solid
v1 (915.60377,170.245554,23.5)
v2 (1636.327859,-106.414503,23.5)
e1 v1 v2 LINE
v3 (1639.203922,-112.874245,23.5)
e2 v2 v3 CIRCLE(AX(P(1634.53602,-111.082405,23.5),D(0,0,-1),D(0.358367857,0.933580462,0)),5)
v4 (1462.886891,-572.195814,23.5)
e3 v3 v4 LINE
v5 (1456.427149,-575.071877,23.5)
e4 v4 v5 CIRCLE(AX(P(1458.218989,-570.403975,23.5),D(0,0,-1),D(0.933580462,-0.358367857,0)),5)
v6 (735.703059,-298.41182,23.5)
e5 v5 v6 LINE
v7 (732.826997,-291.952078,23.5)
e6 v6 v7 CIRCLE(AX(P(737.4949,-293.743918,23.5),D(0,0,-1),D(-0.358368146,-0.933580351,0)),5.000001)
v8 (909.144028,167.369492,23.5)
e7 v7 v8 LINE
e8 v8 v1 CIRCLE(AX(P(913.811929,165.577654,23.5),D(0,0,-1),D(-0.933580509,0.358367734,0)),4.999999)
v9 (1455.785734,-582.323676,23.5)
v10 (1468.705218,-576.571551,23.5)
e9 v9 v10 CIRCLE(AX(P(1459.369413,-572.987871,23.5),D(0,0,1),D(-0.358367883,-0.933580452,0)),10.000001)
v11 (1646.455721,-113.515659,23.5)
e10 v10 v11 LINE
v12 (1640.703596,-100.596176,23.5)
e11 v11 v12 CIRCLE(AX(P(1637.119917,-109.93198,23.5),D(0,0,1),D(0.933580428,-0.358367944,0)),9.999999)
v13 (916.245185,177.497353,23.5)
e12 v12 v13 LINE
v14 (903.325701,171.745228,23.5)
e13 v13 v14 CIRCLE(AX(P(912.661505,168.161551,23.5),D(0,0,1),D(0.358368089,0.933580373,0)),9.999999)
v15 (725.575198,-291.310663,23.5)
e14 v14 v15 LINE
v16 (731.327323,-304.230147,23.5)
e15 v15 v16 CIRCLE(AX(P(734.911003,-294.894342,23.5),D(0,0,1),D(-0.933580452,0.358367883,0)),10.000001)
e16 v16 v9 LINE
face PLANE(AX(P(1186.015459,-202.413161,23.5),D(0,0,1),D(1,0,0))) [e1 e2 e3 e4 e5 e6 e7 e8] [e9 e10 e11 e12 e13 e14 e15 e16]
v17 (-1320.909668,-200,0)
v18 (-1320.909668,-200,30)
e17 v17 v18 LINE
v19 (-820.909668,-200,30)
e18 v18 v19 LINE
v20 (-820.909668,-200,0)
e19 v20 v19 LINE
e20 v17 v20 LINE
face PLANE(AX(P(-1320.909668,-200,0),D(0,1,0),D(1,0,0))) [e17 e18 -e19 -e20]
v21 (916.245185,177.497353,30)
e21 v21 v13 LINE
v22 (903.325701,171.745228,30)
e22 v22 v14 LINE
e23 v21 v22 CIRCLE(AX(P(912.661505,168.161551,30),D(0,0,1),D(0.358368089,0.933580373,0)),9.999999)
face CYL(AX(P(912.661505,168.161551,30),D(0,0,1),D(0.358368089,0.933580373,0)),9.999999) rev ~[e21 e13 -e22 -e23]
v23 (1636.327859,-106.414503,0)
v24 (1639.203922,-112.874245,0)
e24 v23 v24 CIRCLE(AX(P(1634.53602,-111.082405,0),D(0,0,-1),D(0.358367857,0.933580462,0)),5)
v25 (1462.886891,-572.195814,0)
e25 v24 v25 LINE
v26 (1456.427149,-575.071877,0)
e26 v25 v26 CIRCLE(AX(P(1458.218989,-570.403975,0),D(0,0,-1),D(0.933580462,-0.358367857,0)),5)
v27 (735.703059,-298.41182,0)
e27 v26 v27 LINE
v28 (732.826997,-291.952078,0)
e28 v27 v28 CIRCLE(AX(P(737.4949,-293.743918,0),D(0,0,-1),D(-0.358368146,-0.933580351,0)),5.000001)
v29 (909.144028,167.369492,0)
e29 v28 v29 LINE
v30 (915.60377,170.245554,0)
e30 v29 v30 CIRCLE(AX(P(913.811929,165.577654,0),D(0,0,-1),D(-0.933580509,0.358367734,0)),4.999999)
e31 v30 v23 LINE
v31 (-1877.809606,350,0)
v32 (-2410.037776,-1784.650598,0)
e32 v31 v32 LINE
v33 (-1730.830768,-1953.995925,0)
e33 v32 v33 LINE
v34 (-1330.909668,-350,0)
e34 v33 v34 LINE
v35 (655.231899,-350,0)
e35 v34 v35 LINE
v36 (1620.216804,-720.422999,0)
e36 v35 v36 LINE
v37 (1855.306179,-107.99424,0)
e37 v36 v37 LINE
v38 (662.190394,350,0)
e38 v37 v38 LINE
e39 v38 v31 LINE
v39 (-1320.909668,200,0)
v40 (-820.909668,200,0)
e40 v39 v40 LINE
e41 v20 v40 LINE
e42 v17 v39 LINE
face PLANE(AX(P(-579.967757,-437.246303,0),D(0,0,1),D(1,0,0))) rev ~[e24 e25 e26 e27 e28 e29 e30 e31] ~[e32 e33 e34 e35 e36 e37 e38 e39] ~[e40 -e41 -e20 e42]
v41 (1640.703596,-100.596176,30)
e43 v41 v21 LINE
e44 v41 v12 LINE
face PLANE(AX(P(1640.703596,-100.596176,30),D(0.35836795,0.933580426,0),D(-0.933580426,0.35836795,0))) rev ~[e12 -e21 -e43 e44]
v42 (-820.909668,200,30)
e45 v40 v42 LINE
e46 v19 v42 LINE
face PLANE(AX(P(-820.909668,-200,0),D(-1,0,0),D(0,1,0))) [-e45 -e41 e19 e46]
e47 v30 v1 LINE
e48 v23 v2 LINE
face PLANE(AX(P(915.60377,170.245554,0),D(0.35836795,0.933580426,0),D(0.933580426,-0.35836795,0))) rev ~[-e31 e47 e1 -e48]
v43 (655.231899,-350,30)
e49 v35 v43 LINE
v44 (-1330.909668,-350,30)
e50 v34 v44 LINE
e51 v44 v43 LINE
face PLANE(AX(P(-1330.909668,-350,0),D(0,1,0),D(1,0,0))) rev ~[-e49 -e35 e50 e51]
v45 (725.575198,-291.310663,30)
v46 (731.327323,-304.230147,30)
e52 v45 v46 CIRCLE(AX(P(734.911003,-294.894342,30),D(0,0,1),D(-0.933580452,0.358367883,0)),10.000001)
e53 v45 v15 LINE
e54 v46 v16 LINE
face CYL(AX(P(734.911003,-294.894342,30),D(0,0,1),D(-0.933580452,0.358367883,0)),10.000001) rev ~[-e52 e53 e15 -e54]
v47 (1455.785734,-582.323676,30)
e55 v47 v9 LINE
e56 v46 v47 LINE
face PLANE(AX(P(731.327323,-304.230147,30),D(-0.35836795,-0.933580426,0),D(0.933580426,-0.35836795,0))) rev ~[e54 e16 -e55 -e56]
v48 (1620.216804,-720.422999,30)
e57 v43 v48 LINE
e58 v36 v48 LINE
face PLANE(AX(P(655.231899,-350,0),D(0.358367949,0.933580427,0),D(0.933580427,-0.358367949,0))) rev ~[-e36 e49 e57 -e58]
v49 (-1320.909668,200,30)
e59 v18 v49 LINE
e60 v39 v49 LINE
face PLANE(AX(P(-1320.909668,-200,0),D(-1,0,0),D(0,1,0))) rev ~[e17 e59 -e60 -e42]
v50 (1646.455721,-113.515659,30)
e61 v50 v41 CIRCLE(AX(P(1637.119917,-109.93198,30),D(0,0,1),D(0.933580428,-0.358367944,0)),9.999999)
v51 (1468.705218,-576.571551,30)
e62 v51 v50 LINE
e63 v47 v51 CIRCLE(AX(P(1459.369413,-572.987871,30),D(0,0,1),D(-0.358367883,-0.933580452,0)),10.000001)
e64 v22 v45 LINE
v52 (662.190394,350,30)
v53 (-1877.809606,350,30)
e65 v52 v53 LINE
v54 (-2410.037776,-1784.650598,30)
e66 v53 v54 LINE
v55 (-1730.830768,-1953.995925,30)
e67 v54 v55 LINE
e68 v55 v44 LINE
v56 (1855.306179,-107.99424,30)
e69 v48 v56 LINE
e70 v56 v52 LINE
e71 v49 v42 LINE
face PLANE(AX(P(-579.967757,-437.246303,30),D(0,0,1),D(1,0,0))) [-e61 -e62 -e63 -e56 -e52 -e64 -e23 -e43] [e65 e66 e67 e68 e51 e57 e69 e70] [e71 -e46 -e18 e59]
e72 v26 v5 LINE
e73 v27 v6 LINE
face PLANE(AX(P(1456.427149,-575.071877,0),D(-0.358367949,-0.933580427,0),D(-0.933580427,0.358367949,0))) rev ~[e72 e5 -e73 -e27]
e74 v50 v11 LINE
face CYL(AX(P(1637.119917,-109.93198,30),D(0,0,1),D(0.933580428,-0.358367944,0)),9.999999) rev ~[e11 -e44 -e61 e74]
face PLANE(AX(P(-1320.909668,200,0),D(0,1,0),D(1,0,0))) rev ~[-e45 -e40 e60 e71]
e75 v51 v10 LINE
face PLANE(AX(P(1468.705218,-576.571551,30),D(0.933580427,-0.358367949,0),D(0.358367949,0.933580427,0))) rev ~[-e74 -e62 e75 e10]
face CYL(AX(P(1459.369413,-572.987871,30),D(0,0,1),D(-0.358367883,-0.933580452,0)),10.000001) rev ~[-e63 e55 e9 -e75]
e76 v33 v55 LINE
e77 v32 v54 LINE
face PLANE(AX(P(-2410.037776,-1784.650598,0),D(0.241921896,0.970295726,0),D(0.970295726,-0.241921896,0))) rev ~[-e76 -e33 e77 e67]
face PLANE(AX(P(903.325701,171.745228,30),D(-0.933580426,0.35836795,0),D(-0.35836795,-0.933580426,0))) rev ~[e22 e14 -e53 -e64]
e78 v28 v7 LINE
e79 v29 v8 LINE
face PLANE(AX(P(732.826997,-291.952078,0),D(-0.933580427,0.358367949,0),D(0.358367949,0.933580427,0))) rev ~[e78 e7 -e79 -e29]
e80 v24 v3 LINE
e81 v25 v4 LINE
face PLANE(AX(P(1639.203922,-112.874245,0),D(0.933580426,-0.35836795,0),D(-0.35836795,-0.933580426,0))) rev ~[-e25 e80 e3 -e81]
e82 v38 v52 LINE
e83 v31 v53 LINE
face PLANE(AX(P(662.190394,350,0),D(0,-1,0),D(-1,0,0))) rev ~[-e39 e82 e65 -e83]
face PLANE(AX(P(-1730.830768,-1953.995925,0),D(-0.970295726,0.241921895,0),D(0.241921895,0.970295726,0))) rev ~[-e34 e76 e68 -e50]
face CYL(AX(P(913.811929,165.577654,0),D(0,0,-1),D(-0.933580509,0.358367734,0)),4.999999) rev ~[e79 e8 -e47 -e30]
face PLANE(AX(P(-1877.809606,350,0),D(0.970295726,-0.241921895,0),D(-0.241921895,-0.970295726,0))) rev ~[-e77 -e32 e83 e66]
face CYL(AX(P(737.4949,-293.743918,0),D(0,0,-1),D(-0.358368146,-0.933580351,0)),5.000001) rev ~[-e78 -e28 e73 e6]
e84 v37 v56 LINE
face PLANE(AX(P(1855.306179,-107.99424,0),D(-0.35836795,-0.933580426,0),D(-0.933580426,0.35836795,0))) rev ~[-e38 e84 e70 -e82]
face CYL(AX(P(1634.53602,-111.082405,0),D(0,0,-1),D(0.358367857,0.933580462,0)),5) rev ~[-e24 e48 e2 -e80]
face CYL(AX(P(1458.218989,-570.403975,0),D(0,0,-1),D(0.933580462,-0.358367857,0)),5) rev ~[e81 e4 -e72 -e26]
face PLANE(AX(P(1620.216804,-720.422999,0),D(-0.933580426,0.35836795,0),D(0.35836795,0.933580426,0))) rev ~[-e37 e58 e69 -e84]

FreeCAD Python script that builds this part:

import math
import FreeCAD as App
import Part
import Sketcher
Q = App.Units.Quantity

doc = App.newDocument("Part")
body = doc.addObject("PartDesign::Body", "Body")

# Sketch on XY plane
sketch1 = body.newObject("Sketcher::SketchObject", "Sketch")
sketch1.AttachmentSupport = (doc.getObject("XY_Plane"), [""])
sketch1.MapMode = "FlatFace"
sketch1.addGeometry([
    Part.LineSegment(App.Vector(-1330.9, -350, 0), App.Vector(655.2, -350, 0)),  # 0
    Part.LineSegment(App.Vector(655.2, -350, 0), App.Vector(1620.2, -720.4, 0)),  # 1
    Part.LineSegment(App.Vector(1620.2, -720.4, 0), App.Vector(1855.3, -108, 0)),  # 2
    Part.LineSegment(App.Vector(1855.3, -108, 0), App.Vector(662.2, 350, 0)),  # 3
    Part.LineSegment(App.Vector(662.2, 350, 0), App.Vector(-1877.8, 350, 0)),  # 4
    Part.LineSegment(App.Vector(-1877.8, 350, 0), App.Vector(-2410, -1784.7, 0)),  # 5
    Part.LineSegment(App.Vector(-2410, -1784.7, 0), App.Vector(-1730.8, -1954, 0)),  # 6
    Part.LineSegment(App.Vector(-1730.8, -1954, 0), App.Vector(-1330.9, -350, 0)),  # 7
    Part.LineSegment(App.Vector(732.8, -292, 0), App.Vector(909.1, 167.4, 0)),  # 8
    Part.ArcOfCircle(Part.Circle(App.Vector(913.8, 165.6, 0), App.Vector(0, 0, 1), 5), math.radians(69), math.radians(159)),  # 9
    Part.LineSegment(App.Vector(915.6, 170.2, 0), App.Vector(1636.3, -106.4, 0)),  # 10
    Part.ArcOfCircle(Part.Circle(App.Vector(1634.5, -111.1, 0), App.Vector(0, 0, 1), 5), math.radians(-21), math.radians(69)),  # 11
    Part.LineSegment(App.Vector(1639.2, -112.9, 0), App.Vector(1462.9, -572.2, 0)),  # 12
    Part.ArcOfCircle(Part.Circle(App.Vector(1458.2, -570.4, 0), App.Vector(0, 0, 1), 5), math.radians(-111), math.radians(-21)),  # 13
    Part.LineSegment(App.Vector(1456.4, -575.1, 0), App.Vector(735.7, -298.4, 0)),  # 14
    Part.ArcOfCircle(Part.Circle(App.Vector(737.5, -293.7, 0), App.Vector(0, 0, 1), 5), math.radians(159), math.radians(249)),  # 15
    Part.LineSegment(App.Vector(-820.9, -200, 0), App.Vector(-1320.9, -200, 0)),  # 16
    Part.LineSegment(App.Vector(-1320.9, -200, 0), App.Vector(-1320.9, 200, 0)),  # 17
    Part.LineSegment(App.Vector(-1320.9, 200, 0), App.Vector(-820.9, 200, 0)),  # 18
    Part.LineSegment(App.Vector(-820.9, 200, 0), App.Vector(-820.9, -200, 0)),  # 19
], False)
sketch1.addConstraint([
    Sketcher.Constraint("Coincident", 0, 2, 1, 1),
    Sketcher.Constraint("Coincident", 1, 2, 2, 1),
    Sketcher.Constraint("Coincident", 2, 2, 3, 1),
    Sketcher.Constraint("Coincident", 3, 2, 4, 1),
    Sketcher.Constraint("Coincident", 4, 2, 5, 1),
    Sketcher.Constraint("Coincident", 5, 2, 6, 1),
    Sketcher.Constraint("Coincident", 6, 2, 7, 1),
    Sketcher.Constraint("Coincident", 7, 2, 0, 1),
    Sketcher.Constraint("Tangent", 8, 2, 9, 2),
    Sketcher.Constraint("Tangent", 9, 1, 10, 1),
    Sketcher.Constraint("Tangent", 10, 2, 11, 2),
    Sketcher.Constraint("Tangent", 11, 1, 12, 1),
    Sketcher.Constraint("Tangent", 12, 2, 13, 2),
    Sketcher.Constraint("Tangent", 13, 1, 14, 1),
    Sketcher.Constraint("Tangent", 14, 2, 15, 2),
    Sketcher.Constraint("Tangent", 15, 1, 8, 1),
    Sketcher.Constraint("Coincident", 16, 2, 17, 1),
    Sketcher.Constraint("Coincident", 17, 2, 18, 1),
    Sketcher.Constraint("Coincident", 18, 2, 19, 1),
    Sketcher.Constraint("Coincident", 19, 2, 16, 1),
    Sketcher.Constraint("Horizontal", 0),
    Sketcher.Constraint("Horizontal", 4),
    Sketcher.Constraint("Horizontal", 16),
    Sketcher.Constraint("Vertical", 17),
    Sketcher.Constraint("Horizontal", 18),
    Sketcher.Constraint("Vertical", 19),
    Sketcher.Constraint("Equal", 9, 11),
    Sketcher.Constraint("Equal", 11, 13),
    Sketcher.Constraint("Equal", 13, 15),
    Sketcher.Constraint("Perpendicular", 1, 2),
    Sketcher.Constraint("Perpendicular", 2, 3),
    Sketcher.Constraint("Perpendicular", 5, 6),
    Sketcher.Constraint("Perpendicular", 6, 7),
    Sketcher.Constraint("Perpendicular", 3, 8),
    Sketcher.Constraint("Perpendicular", 8, 10),
    Sketcher.Constraint("Perpendicular", 10, 12),
    Sketcher.Constraint("Perpendicular", 12, 14),
    Sketcher.Constraint("Radius", 9, Q("4.999999 mm")),
    Sketcher.Constraint("DistanceX", 4, 2, 4, 1, Q("2540 mm")),
    Sketcher.Constraint("DistanceX", 16, 2, 16, 1, Q("500 mm")),
    Sketcher.Constraint("DistanceY", 17, 1, 17, 2, Q("400 mm")),
    Sketcher.Constraint("Angle", 1, Q("-21 deg")),
    Sketcher.Constraint("Angle", 5, Q("-104 deg")),
    Sketcher.Constraint("Distance", 2, Q("655.999999 mm")),
    Sketcher.Constraint("Distance", 3, Q("1278 mm")),
    Sketcher.Constraint("Distance", 5, Q("2200 mm")),
    Sketcher.Constraint("Distance", 6, Q("700 mm")),
    Sketcher.Constraint("Distance", 8, Q("492 mm")),
    Sketcher.Constraint("Distance", 10, Q("772 mm")),
    Sketcher.Constraint("DistanceY", 0, 2, -1, 1, Q("350 mm")),
    Sketcher.Constraint("DistanceY", -1, 1, 3, 2, Q("350 mm")),
    Sketcher.Constraint("DistanceY", 16, 2, -1, 1, Q("200 mm")),
    Sketcher.Constraint("DistanceX", 7, 2, 16, 2, Q("10 mm")),
    Sketcher.Constraint("DistanceX", 0, 2, 15, 3, Q("82.263001 mm")),
    Sketcher.Constraint("DistanceX", -1, 1, 15, 3, Q("737.4949 mm")),
    Sketcher.Constraint("DistanceY", -1, 1, 8, 2, Q("167.369492 mm")),
])
pad1 = body.newObject("PartDesign::Pad", "Pad")
pad1.Profile = sketch1
pad1.Length = 30

# Sketch on XY plane
sketch2 = body.newObject("Sketcher::SketchObject", "Sketch001")
sketch2.AttachmentSupport = (doc.getObject("XY_Plane"), [""])
sketch2.MapMode = "FlatFace"
sketch2.AttachmentOffset = App.Placement(App.Vector(0, 0, 30), App.Rotation())
sketch2.addGeometry([
    Part.LineSegment(App.Vector(1641, -101, 0), App.Vector(916, 177, 0)),  # 0
    Part.ArcOfCircle(Part.Circle(App.Vector(913, 168, 0), App.Vector(0, 0, 1), 10), math.radians(69), math.radians(159)),  # 1
    Part.LineSegment(App.Vector(903, 172, 0), App.Vector(726, -291, 0)),  # 2
    Part.ArcOfCircle(Part.Circle(App.Vector(735, -295, 0), App.Vector(0, 0, 1), 10), math.radians(159), math.radians(249)),  # 3
    Part.LineSegment(App.Vector(731, -304, 0), App.Vector(1456, -582, 0)),  # 4
    Part.ArcOfCircle(Part.Circle(App.Vector(1459, -573, 0), App.Vector(0, 0, 1), 10), math.radians(-111), math.radians(-21)),  # 5
    Part.LineSegment(App.Vector(1469, -577, 0), App.Vector(1646, -114, 0)),  # 6
    Part.ArcOfCircle(Part.Circle(App.Vector(1637, -110, 0), App.Vector(0, 0, 1), 10), math.radians(-21), math.radians(69)),  # 7
], False)
sketch2.addConstraint([
    Sketcher.Constraint("Tangent", 0, 2, 1, 1),
    Sketcher.Constraint("Tangent", 1, 2, 2, 1),
    Sketcher.Constraint("Tangent", 2, 2, 3, 1),
    Sketcher.Constraint("Tangent", 3, 2, 4, 1),
    Sketcher.Constraint("Tangent", 4, 2, 5, 1),
    Sketcher.Constraint("Tangent", 5, 2, 6, 1),
    Sketcher.Constraint("Tangent", 6, 2, 7, 1),
    Sketcher.Constraint("Tangent", 7, 2, 0, 1),
    Sketcher.Constraint("Equal", 3, 5),
    Sketcher.Constraint("Equal", 5, 7),
    Sketcher.Constraint("Perpendicular", 0, 2),
    Sketcher.Constraint("Perpendicular", 2, 4),
    Sketcher.Constraint("Perpendicular", 4, 6),
    Sketcher.Constraint("Equal", 0, 4),
    Sketcher.Constraint("Radius", 1, Q("9.999999 mm")),
    Sketcher.Constraint("Angle", 0, Q("159 deg")),
    Sketcher.Constraint("Distance", 0, Q("776 mm")),
    Sketcher.Constraint("Distance", 2, Q("496 mm")),
    Sketcher.Constraint("DistanceX", -1, 1, 1, 2, Q("903.325701 mm")),
    Sketcher.Constraint("DistanceY", -1, 1, 1, 3, Q("168.161551 mm")),
])
pocket1 = body.newObject("PartDesign::Pocket", "Pocket")
pocket1.Profile = sketch2
pocket1.Length = 6.5

doc.recompute()
